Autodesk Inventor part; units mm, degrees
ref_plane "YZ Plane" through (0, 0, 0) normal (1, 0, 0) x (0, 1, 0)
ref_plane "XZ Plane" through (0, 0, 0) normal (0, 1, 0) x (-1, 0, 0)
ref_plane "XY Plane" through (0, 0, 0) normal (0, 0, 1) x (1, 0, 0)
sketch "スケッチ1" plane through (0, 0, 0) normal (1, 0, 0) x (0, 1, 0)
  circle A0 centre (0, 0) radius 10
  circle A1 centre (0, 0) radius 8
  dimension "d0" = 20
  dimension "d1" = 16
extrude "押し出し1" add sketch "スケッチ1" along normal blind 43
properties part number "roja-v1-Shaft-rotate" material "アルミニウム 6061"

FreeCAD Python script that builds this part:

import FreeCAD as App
import Part
import Sketcher

V = App.Vector

doc = App.newDocument("Part")
body = doc.addObject("PartDesign::Body", "Body")

sketch1 = body.newObject("Sketcher::SketchObject", "Sketch")
sketch1.AttachmentSupport = (doc.getObject("YZ_Plane"), [""])
sketch1.MapMode = "FlatFace"
sketch1.addGeometry([
    Part.Circle(V(0, 0, 0), V(0, 0, 1), 10),
    Part.Circle(V(0, 0, 0), V(0, 0, 1), 8),
], False)
sketch1.addConstraint([
    Sketcher.Constraint("Coincident", 0, 3, -1, 1),
    Sketcher.Constraint("Coincident", 1, 3, -1, 1),
    Sketcher.Constraint("Diameter", 0, 20.0),
    Sketcher.Constraint("Diameter", 1, 16.0),
])
pad1 = body.newObject("PartDesign::Pad", "Pad")
pad1.Profile = sketch1
pad1.Length = 43

doc.recompute()
